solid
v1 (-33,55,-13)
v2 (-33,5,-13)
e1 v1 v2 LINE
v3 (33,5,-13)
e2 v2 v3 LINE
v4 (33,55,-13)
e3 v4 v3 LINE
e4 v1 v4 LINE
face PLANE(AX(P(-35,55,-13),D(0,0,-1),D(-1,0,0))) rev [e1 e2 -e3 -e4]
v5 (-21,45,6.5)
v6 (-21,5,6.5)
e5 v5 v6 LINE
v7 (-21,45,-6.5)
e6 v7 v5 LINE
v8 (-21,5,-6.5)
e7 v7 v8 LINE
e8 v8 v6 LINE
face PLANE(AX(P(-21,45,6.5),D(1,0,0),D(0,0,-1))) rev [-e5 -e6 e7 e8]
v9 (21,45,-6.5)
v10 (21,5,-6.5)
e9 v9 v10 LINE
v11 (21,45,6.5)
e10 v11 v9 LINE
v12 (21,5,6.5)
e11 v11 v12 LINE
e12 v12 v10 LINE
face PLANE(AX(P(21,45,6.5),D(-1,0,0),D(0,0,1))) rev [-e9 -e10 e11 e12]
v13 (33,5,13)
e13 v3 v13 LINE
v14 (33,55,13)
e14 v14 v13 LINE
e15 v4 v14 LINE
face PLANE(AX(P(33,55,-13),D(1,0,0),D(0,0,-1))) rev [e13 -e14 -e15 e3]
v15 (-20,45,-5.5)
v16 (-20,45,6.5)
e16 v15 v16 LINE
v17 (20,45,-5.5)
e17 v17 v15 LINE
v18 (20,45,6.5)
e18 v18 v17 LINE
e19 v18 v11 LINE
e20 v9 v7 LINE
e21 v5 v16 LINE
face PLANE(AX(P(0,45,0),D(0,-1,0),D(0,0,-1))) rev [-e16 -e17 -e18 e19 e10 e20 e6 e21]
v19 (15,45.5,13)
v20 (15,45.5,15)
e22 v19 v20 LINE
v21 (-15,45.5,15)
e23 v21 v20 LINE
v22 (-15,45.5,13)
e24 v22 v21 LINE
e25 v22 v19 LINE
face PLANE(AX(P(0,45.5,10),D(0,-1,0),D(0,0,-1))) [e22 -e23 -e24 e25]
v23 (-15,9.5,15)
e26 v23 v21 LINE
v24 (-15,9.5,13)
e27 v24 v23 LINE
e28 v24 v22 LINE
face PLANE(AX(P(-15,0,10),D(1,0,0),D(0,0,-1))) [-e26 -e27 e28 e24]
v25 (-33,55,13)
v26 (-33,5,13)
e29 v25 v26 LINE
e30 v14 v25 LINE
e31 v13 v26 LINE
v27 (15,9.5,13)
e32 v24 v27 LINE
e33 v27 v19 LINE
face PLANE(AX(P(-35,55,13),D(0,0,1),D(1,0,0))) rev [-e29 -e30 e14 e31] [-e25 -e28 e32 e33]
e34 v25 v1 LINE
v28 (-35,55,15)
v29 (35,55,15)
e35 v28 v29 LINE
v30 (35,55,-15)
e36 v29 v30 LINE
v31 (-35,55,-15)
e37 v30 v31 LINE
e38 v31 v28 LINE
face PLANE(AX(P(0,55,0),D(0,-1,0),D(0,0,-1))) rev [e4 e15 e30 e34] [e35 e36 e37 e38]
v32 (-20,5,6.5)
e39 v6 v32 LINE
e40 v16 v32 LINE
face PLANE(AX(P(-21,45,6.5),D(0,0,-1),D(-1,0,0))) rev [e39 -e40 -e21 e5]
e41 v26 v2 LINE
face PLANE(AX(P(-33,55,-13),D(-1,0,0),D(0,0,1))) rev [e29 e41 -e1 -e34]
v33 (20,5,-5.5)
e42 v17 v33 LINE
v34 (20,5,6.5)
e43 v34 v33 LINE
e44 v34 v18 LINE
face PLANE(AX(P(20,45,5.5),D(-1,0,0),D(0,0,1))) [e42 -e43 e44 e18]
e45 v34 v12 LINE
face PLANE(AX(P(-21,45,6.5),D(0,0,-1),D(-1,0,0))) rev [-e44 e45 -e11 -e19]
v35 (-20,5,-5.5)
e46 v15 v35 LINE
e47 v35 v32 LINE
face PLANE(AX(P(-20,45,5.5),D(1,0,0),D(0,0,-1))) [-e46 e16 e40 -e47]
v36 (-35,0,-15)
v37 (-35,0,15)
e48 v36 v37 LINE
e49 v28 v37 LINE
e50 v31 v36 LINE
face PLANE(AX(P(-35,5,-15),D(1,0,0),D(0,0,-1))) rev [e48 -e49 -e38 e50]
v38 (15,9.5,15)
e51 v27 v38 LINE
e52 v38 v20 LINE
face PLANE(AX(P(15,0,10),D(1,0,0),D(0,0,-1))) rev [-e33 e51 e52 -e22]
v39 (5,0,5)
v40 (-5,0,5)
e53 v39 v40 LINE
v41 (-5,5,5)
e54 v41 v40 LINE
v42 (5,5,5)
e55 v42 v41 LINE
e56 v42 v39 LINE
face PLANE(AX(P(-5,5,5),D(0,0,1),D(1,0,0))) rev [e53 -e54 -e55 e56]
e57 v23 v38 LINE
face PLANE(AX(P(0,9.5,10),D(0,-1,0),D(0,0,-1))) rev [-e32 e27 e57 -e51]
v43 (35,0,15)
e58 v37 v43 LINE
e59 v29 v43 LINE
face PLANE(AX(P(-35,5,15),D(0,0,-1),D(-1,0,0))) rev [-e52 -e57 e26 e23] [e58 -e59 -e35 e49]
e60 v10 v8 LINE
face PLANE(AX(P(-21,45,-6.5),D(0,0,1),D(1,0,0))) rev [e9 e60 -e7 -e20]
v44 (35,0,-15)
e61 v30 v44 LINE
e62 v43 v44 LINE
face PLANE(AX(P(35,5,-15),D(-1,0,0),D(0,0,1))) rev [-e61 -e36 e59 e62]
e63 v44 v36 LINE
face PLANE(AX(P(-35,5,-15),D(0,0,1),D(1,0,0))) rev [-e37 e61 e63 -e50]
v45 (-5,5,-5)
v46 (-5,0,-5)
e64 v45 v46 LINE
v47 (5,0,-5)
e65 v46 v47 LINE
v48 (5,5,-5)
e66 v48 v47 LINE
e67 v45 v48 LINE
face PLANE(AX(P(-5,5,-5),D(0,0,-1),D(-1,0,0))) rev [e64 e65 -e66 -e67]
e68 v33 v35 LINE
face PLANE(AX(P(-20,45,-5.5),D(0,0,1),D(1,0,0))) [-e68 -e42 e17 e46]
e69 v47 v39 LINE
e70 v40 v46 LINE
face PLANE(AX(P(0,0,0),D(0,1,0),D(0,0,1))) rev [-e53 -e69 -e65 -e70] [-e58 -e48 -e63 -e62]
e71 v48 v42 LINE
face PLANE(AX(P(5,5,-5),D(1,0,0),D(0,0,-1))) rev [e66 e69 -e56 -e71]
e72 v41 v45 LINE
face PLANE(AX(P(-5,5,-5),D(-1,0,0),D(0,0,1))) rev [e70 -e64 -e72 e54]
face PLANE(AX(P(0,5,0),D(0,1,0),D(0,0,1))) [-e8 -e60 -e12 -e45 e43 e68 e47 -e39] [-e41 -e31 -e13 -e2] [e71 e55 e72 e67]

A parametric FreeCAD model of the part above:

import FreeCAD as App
import Part
import Sketcher


def add_polygon(sketch, points):
    """Adds a closed chain of lines whose ends are joined by coincident constraints."""
    first, n = sketch.GeometryCount, len(points)
    for a, b in zip(points, points[1:] + points[:1]):
        sketch.addGeometry(Part.LineSegment(App.Vector(*a, 0), App.Vector(*b, 0)), False)
    for i in range(n):
        sketch.addConstraint(Sketcher.Constraint("Coincident", first + i, 2, first + (i + 1) % n, 1))

doc = App.newDocument("Part")
body = doc.addObject("PartDesign::Body", "Body")

sketch1 = body.newObject("Sketcher::SketchObject", "Sketch")
sketch1.AttachmentSupport = (doc.getObject("XZ_Plane"), [""])
sketch1.MapMode = "FlatFace"
add_polygon(sketch1, [(-35, -15), (-35, 15), (35, 15), (35, -15)])
sketch1.addConstraint(Sketcher.Constraint("Vertical", 0))
sketch1.addConstraint(Sketcher.Constraint("Horizontal", 1))
sketch1.addConstraint(Sketcher.Constraint("Vertical", 2))
sketch1.addConstraint(Sketcher.Constraint("Horizontal", 3))
sketch1.addConstraint(Sketcher.Constraint("Symmetric", 0, 2, 2, 2, -1, 1))
sketch1.addConstraint(Sketcher.Constraint("DistanceX", 1, 1, 1, 2, 70.0))
sketch1.addConstraint(Sketcher.Constraint("DistanceY", 0, 1, 0, 2, 30.0))
pad1 = body.newObject("PartDesign::Pad", "Pad")
pad1.Profile = sketch1
pad1.Length = 5
pad1.Reversed = True

sketch2 = body.newObject("Sketcher::SketchObject", "Sketch001")
sketch2.AttachmentSupport = (doc.getObject("XZ_Plane"), [""])
sketch2.MapMode = "FlatFace"
sketch2.AttachmentOffset = App.Placement(App.Vector(0, 0, -5), App.Rotation())
add_polygon(sketch2, [(-35, 13), (-35, 15), (35, 15), (35, 13)])
add_polygon(sketch2, [(-35, -15), (-35, -13), (35, -13), (35, -15)])
sketch2.addConstraint(Sketcher.Constraint("Vertical", 0))
sketch2.addConstraint(Sketcher.Constraint("Horizontal", 1))
sketch2.addConstraint(Sketcher.Constraint("Vertical", 2))
sketch2.addConstraint(Sketcher.Constraint("Horizontal", 3))
sketch2.addConstraint(Sketcher.Constraint("Vertical", 4))
sketch2.addConstraint(Sketcher.Constraint("Horizontal", 5))
sketch2.addConstraint(Sketcher.Constraint("Vertical", 6))
sketch2.addConstraint(Sketcher.Constraint("Horizontal", 7))
sketch2.addConstraint(Sketcher.Constraint("Symmetric", 2, 2, 4, 2, -1, 1))
sketch2.addConstraint(Sketcher.Constraint("Symmetric", 0, 2, 6, 2, -1, 1))
sketch2.addConstraint(Sketcher.Constraint("Vertical", 3, 2, 4, 2))
sketch2.addConstraint(Sketcher.Constraint("DistanceX", 1, 1, 1, 2, 70.0))
sketch2.addConstraint(Sketcher.Constraint("DistanceY", 0, 1, 0, 2, 2.0))
sketch2.addConstraint(Sketcher.Constraint("DistanceY", -1, 1, 0, 2, 15.0))
pad2 = body.newObject("PartDesign::Pad", "Pad001")
pad2.Profile = sketch2
pad2.Length = 50
pad2.Reversed = True

sketch3 = body.newObject("Sketcher::SketchObject", "Sketch002")
sketch3.AttachmentSupport = (doc.getObject("XZ_Plane"), [""])
sketch3.MapMode = "FlatFace"
sketch3.AttachmentOffset = App.Placement(App.Vector(0, 0, -5), App.Rotation())
add_polygon(sketch3, [(-35, -13), (-35, 13), (-33, 13), (-33, -13)])
add_polygon(sketch3, [(33, -13), (33, 13), (35, 13), (35, -13)])
sketch3.addConstraint(Sketcher.Constraint("Vertical", 0))
sketch3.addConstraint(Sketcher.Constraint("Horizontal", 1))
sketch3.addConstraint(Sketcher.Constraint("Vertical", 2))
sketch3.addConstraint(Sketcher.Constraint("Horizontal", 3))
sketch3.addConstraint(Sketcher.Constraint("Vertical", 4))
sketch3.addConstraint(Sketcher.Constraint("Horizontal", 5))
sketch3.addConstraint(Sketcher.Constraint("Vertical", 6))
sketch3.addConstraint(Sketcher.Constraint("Horizontal", 7))
sketch3.addConstraint(Sketcher.Constraint("Symmetric", 2, 2, 4, 2, -1, 1))
sketch3.addConstraint(Sketcher.Constraint("Symmetric", 0, 2, 6, 2, -1, 1))
sketch3.addConstraint(Sketcher.Constraint("Horizontal", 1, 2, 4, 2))
sketch3.addConstraint(Sketcher.Constraint("DistanceX", 1, 1, 1, 2, 2.0))
sketch3.addConstraint(Sketcher.Constraint("DistanceY", 0, 1, 0, 2, 26.0))
sketch3.addConstraint(Sketcher.Constraint("DistanceX", 0, 2, -1, 1, 35.0))
pad3 = body.newObject("PartDesign::Pad", "Pad002")
pad3.Profile = sketch3
pad3.Length = 50
pad3.Reversed = True

sketch4 = body.newObject("Sketcher::SketchObject", "Sketch003")
sketch4.AttachmentSupport = (doc.getObject("XZ_Plane"), [""])
sketch4.MapMode = "FlatFace"
sketch4.AttachmentOffset = App.Placement(App.Vector(0, 0, -5), App.Rotation())
add_polygon(sketch4, [(-21, -6), (-21, 6), (21, 6), (21, -6)])
add_polygon(sketch4, [(20, 6), (-20, 6), (-20, -6), (20, -6)])
sketch4.addConstraint(Sketcher.Constraint("Vertical", 0))
sketch4.addConstraint(Sketcher.Constraint("Horizontal", 1))
sketch4.addConstraint(Sketcher.Constraint("Vertical", 2))
sketch4.addConstraint(Sketcher.Constraint("Horizontal", 3))
sketch4.addConstraint(Sketcher.Constraint("Horizontal", 4))
sketch4.addConstraint(Sketcher.Constraint("Vertical", 5))
sketch4.addConstraint(Sketcher.Constraint("Horizontal", 6))
sketch4.addConstraint(Sketcher.Constraint("Vertical", 7))
sketch4.addConstraint(Sketcher.Constraint("Symmetric", 0, 2, 2, 2, -1, 1))
sketch4.addConstraint(Sketcher.Constraint("Symmetric", 4, 2, 6, 2, -1, 1))
sketch4.addConstraint(Sketcher.Constraint("DistanceX", 1, 1, 1, 2, 42.0))
sketch4.addConstraint(Sketcher.Constraint("DistanceX", 4, 2, 4, 1, 40.0))
sketch4.addConstraint(Sketcher.Constraint("DistanceY", 0, 1, 0, 2, 13.0))
sketch4.addConstraint(Sketcher.Constraint("DistanceY", 5, 2, 5, 1, 11.0))
pad4 = body.newObject("PartDesign::Pad", "Pad003")
pad4.Profile = sketch4
pad4.Length = 40
pad4.Reversed = True

sketch5 = body.newObject("Sketcher::SketchObject", "Sketch004")
sketch5.AttachmentSupport = (doc.getObject("XY_Plane"), [""])
sketch5.MapMode = "FlatFace"
sketch5.AttachmentOffset = App.Placement(App.Vector(0, 0, 6.5), App.Rotation())
add_polygon(sketch5, [(-20, 45), (-20, 5), (20, 5), (20, 45)])
sketch5.addConstraint(Sketcher.Constraint("Vertical", 0))
sketch5.addConstraint(Sketcher.Constraint("Horizontal", 1))
sketch5.addConstraint(Sketcher.Constraint("Vertical", 2))
sketch5.addConstraint(Sketcher.Constraint("Horizontal", 3))
sketch5.addConstraint(Sketcher.Constraint("Equal", 3, 0))
sketch5.addConstraint(Sketcher.Constraint("DistanceX", 1, 1, 1, 2, 40.0))
sketch5.addConstraint(Sketcher.Constraint("DistanceX", 0, 2, -1, 1, 20.0))
sketch5.addConstraint(Sketcher.Constraint("DistanceY", -1, 1, 0, 2, 5.0))
pocket1 = body.newObject("PartDesign::Pocket", "Pocket")
pocket1.Profile = sketch5
pocket1.Length = 2

sketch6 = body.newObject("Sketcher::SketchObject", "Sketch005")
sketch6.AttachmentSupport = (doc.getObject("XY_Plane"), [""])
sketch6.MapMode = "FlatFace"
sketch6.AttachmentOffset = App.Placement(App.Vector(0, 0, 15), App.Rotation())
add_polygon(sketch6, [(-15, 46), (-15, 10), (15, 10), (15, 46)])
sketch6.addConstraint(Sketcher.Constraint("Vertical", 0))
sketch6.addConstraint(Sketcher.Constraint("Horizontal", 1))
sketch6.addConstraint(Sketcher.Constraint("Vertical", 2))
sketch6.addConstraint(Sketcher.Constraint("Horizontal", 3))
sketch6.addConstraint(Sketcher.Constraint("DistanceX", 1, 1, 1, 2, 30.0))
sketch6.addConstraint(Sketcher.Constraint("DistanceY", 0, 2, 0, 1, 36.0))
sketch6.addConstraint(Sketcher.Constraint("DistanceX", 0, 2, -1, 1, 15.0))
sketch6.addConstraint(Sketcher.Constraint("DistanceY", -1, 1, 0, 2, 9.5))
pocket2 = body.newObject("PartDesign::Pocket", "Pocket001")
pocket2.Profile = sketch6
pocket2.Length = 5

sketch7 = body.newObject("Sketcher::SketchObject", "Sketch006")
sketch7.AttachmentSupport = (doc.getObject("XZ_Plane"), [""])
sketch7.MapMode = "FlatFace"
add_polygon(sketch7, [(-5, 5), (-5, -5), (5, -5), (5, 5)])
sketch7.addConstraint(Sketcher.Constraint("Vertical", 0))
sketch7.addConstraint(Sketcher.Constraint("Horizontal", 1))
sketch7.addConstraint(Sketcher.Constraint("Vertical", 2))
sketch7.addConstraint(Sketcher.Constraint("Horizontal", 3))
sketch7.addConstraint(Sketcher.Constraint("Symmetric", 0, 2, 2, 2, -1, 1))
sketch7.addConstraint(Sketcher.Constraint("Equal", 3, 0))
sketch7.addConstraint(Sketcher.Constraint("DistanceX", 1, 1, 1, 2, 10.0))
pocket3 = body.newObject("PartDesign::Pocket", "Pocket002")
pocket3.Profile = sketch7
pocket3.Length = 5

doc.recompute()
